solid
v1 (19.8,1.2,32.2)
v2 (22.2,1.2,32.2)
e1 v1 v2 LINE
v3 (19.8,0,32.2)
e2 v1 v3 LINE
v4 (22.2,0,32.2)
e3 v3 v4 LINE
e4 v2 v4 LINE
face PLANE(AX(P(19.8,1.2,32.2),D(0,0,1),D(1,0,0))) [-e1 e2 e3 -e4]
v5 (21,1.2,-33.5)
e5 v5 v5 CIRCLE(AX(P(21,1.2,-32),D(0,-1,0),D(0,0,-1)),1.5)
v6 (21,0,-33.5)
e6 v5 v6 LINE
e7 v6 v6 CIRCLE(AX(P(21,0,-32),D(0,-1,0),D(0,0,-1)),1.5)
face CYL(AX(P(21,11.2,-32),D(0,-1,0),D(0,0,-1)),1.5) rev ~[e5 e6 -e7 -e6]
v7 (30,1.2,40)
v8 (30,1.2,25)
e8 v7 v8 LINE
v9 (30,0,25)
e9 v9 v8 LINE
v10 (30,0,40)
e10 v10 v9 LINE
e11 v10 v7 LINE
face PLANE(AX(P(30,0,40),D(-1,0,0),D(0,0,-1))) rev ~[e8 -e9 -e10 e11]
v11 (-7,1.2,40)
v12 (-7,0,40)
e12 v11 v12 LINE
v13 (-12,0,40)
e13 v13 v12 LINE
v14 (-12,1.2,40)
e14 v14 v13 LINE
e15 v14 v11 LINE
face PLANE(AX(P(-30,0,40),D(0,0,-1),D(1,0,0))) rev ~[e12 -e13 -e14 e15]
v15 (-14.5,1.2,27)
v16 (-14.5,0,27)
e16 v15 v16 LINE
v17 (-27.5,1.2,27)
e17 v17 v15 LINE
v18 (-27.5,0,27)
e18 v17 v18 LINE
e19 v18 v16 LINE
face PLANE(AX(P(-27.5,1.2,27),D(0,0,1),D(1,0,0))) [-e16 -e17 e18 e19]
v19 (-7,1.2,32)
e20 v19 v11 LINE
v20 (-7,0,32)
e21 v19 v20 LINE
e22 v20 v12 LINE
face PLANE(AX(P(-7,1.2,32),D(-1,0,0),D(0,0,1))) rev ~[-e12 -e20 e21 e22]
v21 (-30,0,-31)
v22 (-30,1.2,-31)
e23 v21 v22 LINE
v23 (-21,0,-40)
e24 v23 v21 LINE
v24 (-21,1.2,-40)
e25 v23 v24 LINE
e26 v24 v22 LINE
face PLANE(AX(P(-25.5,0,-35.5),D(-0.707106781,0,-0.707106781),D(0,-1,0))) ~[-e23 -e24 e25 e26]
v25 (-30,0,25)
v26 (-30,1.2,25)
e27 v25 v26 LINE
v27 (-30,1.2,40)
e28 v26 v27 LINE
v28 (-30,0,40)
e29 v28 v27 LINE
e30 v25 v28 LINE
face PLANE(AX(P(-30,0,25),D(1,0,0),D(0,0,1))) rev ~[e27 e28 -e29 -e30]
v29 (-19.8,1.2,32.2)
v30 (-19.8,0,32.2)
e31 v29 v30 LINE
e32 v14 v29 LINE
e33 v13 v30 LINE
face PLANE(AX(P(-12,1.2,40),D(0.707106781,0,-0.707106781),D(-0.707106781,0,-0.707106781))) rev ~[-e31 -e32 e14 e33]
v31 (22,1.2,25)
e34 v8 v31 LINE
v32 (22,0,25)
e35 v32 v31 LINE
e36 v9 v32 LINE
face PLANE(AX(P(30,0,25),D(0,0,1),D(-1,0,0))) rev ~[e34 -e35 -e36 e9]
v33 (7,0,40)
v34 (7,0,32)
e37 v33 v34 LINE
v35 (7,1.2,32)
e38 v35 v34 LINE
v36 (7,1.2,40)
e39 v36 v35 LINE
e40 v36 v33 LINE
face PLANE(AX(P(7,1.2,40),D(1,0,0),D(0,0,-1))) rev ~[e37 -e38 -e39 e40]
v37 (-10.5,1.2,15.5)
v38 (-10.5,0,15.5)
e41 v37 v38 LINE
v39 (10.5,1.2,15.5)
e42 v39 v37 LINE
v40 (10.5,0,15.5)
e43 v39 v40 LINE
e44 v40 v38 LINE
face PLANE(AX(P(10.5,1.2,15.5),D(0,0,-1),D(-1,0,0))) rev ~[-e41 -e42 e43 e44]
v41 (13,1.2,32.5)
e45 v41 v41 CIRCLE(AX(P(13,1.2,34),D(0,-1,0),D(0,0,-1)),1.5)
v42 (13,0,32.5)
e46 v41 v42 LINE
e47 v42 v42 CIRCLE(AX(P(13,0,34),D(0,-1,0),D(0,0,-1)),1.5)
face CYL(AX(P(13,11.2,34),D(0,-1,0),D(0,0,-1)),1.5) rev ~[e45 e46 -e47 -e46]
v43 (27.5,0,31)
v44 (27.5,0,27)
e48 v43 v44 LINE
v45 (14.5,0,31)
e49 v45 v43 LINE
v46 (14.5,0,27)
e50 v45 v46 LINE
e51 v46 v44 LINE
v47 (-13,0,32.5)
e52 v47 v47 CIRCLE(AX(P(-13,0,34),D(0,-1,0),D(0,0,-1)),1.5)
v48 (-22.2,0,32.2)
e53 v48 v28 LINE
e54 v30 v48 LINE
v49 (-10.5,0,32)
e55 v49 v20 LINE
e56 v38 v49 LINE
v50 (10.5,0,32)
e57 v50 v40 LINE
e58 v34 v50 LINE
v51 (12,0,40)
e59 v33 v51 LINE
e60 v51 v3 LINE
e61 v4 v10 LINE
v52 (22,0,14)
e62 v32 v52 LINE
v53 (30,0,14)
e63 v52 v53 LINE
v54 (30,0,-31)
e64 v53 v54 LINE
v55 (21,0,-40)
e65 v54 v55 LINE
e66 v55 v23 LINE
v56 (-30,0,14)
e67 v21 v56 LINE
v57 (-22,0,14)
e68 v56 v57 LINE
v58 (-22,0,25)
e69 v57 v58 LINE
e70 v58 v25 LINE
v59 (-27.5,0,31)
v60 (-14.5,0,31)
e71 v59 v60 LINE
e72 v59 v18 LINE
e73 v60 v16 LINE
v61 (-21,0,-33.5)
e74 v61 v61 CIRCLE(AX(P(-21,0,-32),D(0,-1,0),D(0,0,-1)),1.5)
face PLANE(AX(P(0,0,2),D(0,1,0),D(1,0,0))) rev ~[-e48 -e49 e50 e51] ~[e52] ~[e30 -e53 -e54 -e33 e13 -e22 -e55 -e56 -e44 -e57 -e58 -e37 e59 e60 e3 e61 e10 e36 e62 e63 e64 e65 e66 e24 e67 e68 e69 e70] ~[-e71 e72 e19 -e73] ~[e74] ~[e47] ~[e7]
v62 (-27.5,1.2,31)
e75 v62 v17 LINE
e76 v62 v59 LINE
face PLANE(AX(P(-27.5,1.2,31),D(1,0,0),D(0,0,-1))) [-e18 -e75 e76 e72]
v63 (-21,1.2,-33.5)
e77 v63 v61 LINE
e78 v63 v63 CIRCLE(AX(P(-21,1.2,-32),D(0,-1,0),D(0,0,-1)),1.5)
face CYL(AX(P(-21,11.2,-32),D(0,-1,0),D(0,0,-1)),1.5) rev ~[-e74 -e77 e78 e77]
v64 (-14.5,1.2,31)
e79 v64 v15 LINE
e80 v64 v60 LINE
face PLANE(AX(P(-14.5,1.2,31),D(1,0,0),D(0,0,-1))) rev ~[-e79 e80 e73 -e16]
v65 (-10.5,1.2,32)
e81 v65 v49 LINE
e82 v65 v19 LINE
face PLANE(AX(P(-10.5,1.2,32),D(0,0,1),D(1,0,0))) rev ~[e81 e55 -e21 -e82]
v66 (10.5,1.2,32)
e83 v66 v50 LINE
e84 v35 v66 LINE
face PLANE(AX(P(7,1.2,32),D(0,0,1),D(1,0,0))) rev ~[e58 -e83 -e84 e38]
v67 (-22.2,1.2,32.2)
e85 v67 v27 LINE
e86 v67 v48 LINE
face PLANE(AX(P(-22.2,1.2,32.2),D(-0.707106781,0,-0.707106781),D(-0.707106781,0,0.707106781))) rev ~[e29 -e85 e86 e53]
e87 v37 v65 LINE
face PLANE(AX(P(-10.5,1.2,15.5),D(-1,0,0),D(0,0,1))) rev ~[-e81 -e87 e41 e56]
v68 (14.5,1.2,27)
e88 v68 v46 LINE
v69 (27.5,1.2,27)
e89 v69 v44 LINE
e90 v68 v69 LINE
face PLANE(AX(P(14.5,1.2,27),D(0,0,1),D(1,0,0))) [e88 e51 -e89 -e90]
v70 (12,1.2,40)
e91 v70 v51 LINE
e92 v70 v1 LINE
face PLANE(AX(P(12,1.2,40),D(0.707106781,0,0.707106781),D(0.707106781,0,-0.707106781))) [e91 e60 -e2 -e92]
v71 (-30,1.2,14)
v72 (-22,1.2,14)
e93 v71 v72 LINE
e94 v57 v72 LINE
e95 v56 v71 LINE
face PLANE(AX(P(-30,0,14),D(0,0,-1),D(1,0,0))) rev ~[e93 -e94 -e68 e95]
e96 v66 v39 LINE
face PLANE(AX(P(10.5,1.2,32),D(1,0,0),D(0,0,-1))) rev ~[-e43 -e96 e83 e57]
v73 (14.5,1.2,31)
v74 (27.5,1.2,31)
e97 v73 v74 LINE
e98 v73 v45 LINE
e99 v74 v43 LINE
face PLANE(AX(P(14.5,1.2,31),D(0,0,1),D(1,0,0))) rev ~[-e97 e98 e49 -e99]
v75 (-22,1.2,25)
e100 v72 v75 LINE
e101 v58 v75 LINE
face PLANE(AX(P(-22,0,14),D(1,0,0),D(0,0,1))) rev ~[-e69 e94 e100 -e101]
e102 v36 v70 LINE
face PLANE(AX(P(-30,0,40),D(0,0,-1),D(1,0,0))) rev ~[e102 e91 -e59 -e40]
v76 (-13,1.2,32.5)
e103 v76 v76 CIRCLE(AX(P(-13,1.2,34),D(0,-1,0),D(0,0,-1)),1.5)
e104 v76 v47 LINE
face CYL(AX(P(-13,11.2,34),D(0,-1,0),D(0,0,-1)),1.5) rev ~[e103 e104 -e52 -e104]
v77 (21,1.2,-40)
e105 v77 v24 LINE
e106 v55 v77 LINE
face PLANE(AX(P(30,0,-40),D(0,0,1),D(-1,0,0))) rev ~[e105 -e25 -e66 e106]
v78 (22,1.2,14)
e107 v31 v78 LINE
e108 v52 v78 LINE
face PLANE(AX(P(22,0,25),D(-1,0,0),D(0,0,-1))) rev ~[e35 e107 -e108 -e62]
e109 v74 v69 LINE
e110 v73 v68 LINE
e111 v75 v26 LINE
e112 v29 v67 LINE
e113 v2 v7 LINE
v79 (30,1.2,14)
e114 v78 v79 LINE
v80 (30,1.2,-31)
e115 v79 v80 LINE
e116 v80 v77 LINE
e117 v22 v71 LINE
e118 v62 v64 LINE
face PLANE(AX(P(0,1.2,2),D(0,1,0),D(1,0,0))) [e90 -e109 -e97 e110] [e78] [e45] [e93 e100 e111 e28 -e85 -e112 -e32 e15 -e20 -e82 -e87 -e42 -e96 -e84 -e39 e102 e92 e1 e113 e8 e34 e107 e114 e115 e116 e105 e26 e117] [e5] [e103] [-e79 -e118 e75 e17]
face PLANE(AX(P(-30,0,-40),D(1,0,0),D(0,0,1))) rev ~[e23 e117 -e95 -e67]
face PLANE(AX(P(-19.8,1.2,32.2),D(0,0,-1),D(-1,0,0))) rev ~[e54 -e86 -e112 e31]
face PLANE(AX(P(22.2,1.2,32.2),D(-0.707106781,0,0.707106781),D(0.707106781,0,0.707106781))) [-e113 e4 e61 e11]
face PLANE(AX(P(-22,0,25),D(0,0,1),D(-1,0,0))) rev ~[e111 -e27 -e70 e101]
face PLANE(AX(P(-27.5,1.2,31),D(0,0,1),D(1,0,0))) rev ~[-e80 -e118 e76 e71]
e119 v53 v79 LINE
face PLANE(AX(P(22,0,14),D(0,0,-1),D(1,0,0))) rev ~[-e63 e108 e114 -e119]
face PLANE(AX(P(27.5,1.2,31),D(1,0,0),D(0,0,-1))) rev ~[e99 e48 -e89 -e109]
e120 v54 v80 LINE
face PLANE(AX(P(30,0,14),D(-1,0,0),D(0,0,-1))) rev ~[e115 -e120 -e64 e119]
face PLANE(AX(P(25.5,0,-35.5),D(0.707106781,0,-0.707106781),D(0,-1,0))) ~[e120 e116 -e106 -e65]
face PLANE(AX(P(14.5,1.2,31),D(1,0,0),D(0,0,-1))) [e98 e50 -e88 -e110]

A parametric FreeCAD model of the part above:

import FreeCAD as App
import Part
import Sketcher
from FreeCAD import Vector


def edges_at(feature, points):
    """Names of the edges that pass closest to the given points."""
    edges = feature.Shape.Edges
    near = lambda p: min(range(len(edges)), key=lambda i: edges[i].distToShape(Part.Vertex(*p))[0])
    return sorted({f"Edge{near(p) + 1}" for p in points})


def add_polygon(sketch, points):
    """Adds a closed chain of lines whose ends are joined by coincident constraints."""
    first, n = sketch.GeometryCount, len(points)
    for a, b in zip(points, points[1:] + points[:1]):
        sketch.addGeometry(Part.LineSegment(App.Vector(*a, 0), App.Vector(*b, 0)), False)
    for i in range(n):
        sketch.addConstraint(Sketcher.Constraint("Coincident", first + i, 2, first + (i + 1) % n, 1))

doc = App.newDocument("Part")
body = doc.addObject("PartDesign::Body", "Body")

sketch1 = body.newObject("Sketcher::SketchObject", "Sketch")
sketch1.AttachmentSupport = (doc.getObject("XZ_Plane"), [""])
sketch1.MapMode = "FlatFace"
add_polygon(sketch1, [(-30, 25), (-30, 40), (30, 40), (30, 25), (22, 25), (22, 14), (30, 14), (30, -40), (-30, -40), (-30, 14), (-22, 14), (-22, 25)])
sketch1.addConstraint(Sketcher.Constraint("Vertical", 0))
sketch1.addConstraint(Sketcher.Constraint("Horizontal", 1))
sketch1.addConstraint(Sketcher.Constraint("Vertical", 2))
sketch1.addConstraint(Sketcher.Constraint("Horizontal", 3))
sketch1.addConstraint(Sketcher.Constraint("Vertical", 4))
sketch1.addConstraint(Sketcher.Constraint("Horizontal", 5))
sketch1.addConstraint(Sketcher.Constraint("Vertical", 6))
sketch1.addConstraint(Sketcher.Constraint("Horizontal", 7))
sketch1.addConstraint(Sketcher.Constraint("Vertical", 8))
sketch1.addConstraint(Sketcher.Constraint("Horizontal", 9))
sketch1.addConstraint(Sketcher.Constraint("Vertical", 10))
sketch1.addConstraint(Sketcher.Constraint("Horizontal", 11))
sketch1.addConstraint(Sketcher.Constraint("Symmetric", 0, 2, 6, 2, -1, 1))
sketch1.addConstraint(Sketcher.Constraint("Symmetric", 5, 2, 8, 2, -2))
sketch1.addConstraint(Sketcher.Constraint("Symmetric", 3, 2, 10, 2, -2))
sketch1.addConstraint(Sketcher.Constraint("Vertical", 2, 2, 5, 2))
sketch1.addConstraint(Sketcher.Constraint("DistanceX", 1, 1, 1, 2, 60.0))
sketch1.addConstraint(Sketcher.Constraint("DistanceX", 3, 2, 3, 1, 8.0))
sketch1.addConstraint(Sketcher.Constraint("DistanceY", 0, 1, 0, 2, 15.0))
sketch1.addConstraint(Sketcher.Constraint("DistanceY", 4, 2, 4, 1, 11.0))
sketch1.addConstraint(Sketcher.Constraint("DistanceY", 6, 2, 6, 1, 54.0))
pad1 = body.newObject("PartDesign::Pad", "Pad")
pad1.Profile = sketch1
pad1.Length = 1.2
pad1.Reversed = True
doc.recompute()

chamfer = body.newObject("PartDesign::Chamfer", "Chamfer")
chamfer.Base = (pad1, edges_at(pad1, [(-30, 0.6, -40), (30, 0.6, -40)]))
chamfer.Size = 9

sketch2 = body.newObject("Sketcher::SketchObject", "Sketch001")
sketch2.AttachmentSupport = (doc.getObject("XZ_Plane"), [""])
sketch2.MapMode = "FlatFace"
sketch2.AttachmentOffset = App.Placement(Vector(0, 0, -1.2), App.Rotation())
sketch2.addGeometry(Part.Circle(Vector(-13, 34, 0), Vector(0, 0, 1), 1.5), False)
sketch2.addGeometry(Part.Circle(Vector(13, 34, 0), Vector(0, 0, 1), 1.5), False)
sketch2.addGeometry(Part.Circle(Vector(21, -32, 0), Vector(0, 0, 1), 1.5), False)
sketch2.addGeometry(Part.Circle(Vector(-21, -32, 0), Vector(0, 0, 1), 1.5), False)
sketch2.addConstraint(Sketcher.Constraint("Equal", 0, 1))
sketch2.addConstraint(Sketcher.Constraint("Equal", 1, 2))
sketch2.addConstraint(Sketcher.Constraint("Equal", 2, 3))
sketch2.addConstraint(Sketcher.Constraint("Symmetric", 0, 3, 1, 3, -2))
sketch2.addConstraint(Sketcher.Constraint("Symmetric", 2, 3, 3, 3, -2))
sketch2.addConstraint(Sketcher.Constraint("Diameter", 0, 3.0))
sketch2.addConstraint(Sketcher.Constraint("DistanceX", 0, 3, -1, 1, 13.0))
sketch2.addConstraint(Sketcher.Constraint("DistanceY", -1, 1, 0, 3, 34.0))
sketch2.addConstraint(Sketcher.Constraint("DistanceX", -1, 1, 2, 3, 21.0))
sketch2.addConstraint(Sketcher.Constraint("DistanceY", 2, 3, -1, 1, 32.0))
doc.recompute()
hole = body.newObject("PartDesign::Hole", "Hole")
hole.Profile = sketch2
hole.ThreadType = "None"
hole.Diameter = 3
hole.DepthType = "Dimension"
hole.Depth = 10
hole.DrillPoint = "Angled"
hole.DrillPointAngle = 118
hole.Reversed = True

sketch3 = body.newObject("Sketcher::SketchObject", "Sketch002")
sketch3.AttachmentSupport = (doc.getObject("XZ_Plane"), [""])
sketch3.MapMode = "FlatFace"
sketch3.AttachmentOffset = App.Placement(Vector(0, 0, -1.2), App.Rotation())
add_polygon(sketch3, [(-10.5, 32), (-7, 32), (-7, 40), (7, 40), (7, 32), (10.5, 32), (10.5, 15.5), (-10.5, 15.5)])
sketch3.addConstraint(Sketcher.Constraint("Horizontal", 0))
sketch3.addConstraint(Sketcher.Constraint("Vertical", 1))
sketch3.addConstraint(Sketcher.Constraint("Horizontal", 2))
sketch3.addConstraint(Sketcher.Constraint("Vertical", 3))
sketch3.addConstraint(Sketcher.Constraint("Horizontal", 4))
sketch3.addConstraint(Sketcher.Constraint("Vertical", 5))
sketch3.addConstraint(Sketcher.Constraint("Horizontal", 6))
sketch3.addConstraint(Sketcher.Constraint("Vertical", 7))
sketch3.addConstraint(Sketcher.Constraint("Symmetric", 0, 2, 3, 2, -2))
sketch3.addConstraint(Sketcher.Constraint("Equal", 0, 4))
sketch3.addConstraint(Sketcher.Constraint("DistanceX", 2, 1, 2, 2, 14.0))
sketch3.addConstraint(Sketcher.Constraint("DistanceX", 6, 2, 6, 1, 21.0))
sketch3.addConstraint(Sketcher.Constraint("DistanceY", 1, 1, 1, 2, 8.0))
sketch3.addConstraint(Sketcher.Constraint("DistanceY", 5, 2, 5, 1, 16.5))
sketch3.addConstraint(Sketcher.Constraint("DistanceY", -1, 1, 0, 2, 32.0))
pocket1 = body.newObject("PartDesign::Pocket", "Pocket")
pocket1.Profile = sketch3
pocket1.Length = 10
pocket1.Reversed = True

sketch4 = body.newObject("Sketcher::SketchObject", "Sketch003")
sketch4.AttachmentSupport = (doc.getObject("XZ_Plane"), [""])
sketch4.MapMode = "FlatFace"
sketch4.AttachmentOffset = App.Placement(Vector(0, 0, -1.2), App.Rotation())
add_polygon(sketch4, [(14.5, 27), (14.5, 31), (27.5, 31), (27.5, 27)])
add_polygon(sketch4, [(-27.5, 27), (-27.5, 31), (-14.5, 31), (-14.5, 27)])
sketch4.addConstraint(Sketcher.Constraint("Vertical", 0))
sketch4.addConstraint(Sketcher.Constraint("Horizontal", 1))
sketch4.addConstraint(Sketcher.Constraint("Vertical", 2))
sketch4.addConstraint(Sketcher.Constraint("Horizontal", 3))
sketch4.addConstraint(Sketcher.Constraint("Vertical", 4))
sketch4.addConstraint(Sketcher.Constraint("Horizontal", 5))
sketch4.addConstraint(Sketcher.Constraint("Vertical", 6))
sketch4.addConstraint(Sketcher.Constraint("Horizontal", 7))
sketch4.addConstraint(Sketcher.Constraint("Symmetric", 1, 2, 4, 2, -2))
sketch4.addConstraint(Sketcher.Constraint("Symmetric", 3, 2, 6, 2, -2))
sketch4.addConstraint(Sketcher.Constraint("DistanceX", 1, 1, 1, 2, 13.0))
sketch4.addConstraint(Sketcher.Constraint("DistanceY", 0, 1, 0, 2, 4.0))
sketch4.addConstraint(Sketcher.Constraint("DistanceY", -1, 1, 0, 2, 31.0))
sketch4.addConstraint(Sketcher.Constraint("DistanceX", 4, 2, 0, 2, 42.0))
pocket2 = body.newObject("PartDesign::Pocket", "Pocket001")
pocket2.Profile = sketch4
pocket2.Length = 10
pocket2.Reversed = True

sketch5 = body.newObject("Sketcher::SketchObject", "Sketch004")
sketch5.AttachmentSupport = (doc.getObject("XZ_Plane"), [""])
sketch5.MapMode = "FlatFace"
sketch5.AttachmentOffset = App.Placement(Vector(0, 0, -1.2), App.Rotation())
add_polygon(sketch5, [(19.8, 32.2), (12, 40), (30, 40), (22.2, 32.2)])
add_polygon(sketch5, [(-30, 40), (-12, 40), (-19.8, 32.2), (-22.2, 32.2)])
sketch5.addConstraint(Sketcher.Constraint("Horizontal", 1))
sketch5.addConstraint(Sketcher.Constraint("Horizontal", 3))
sketch5.addConstraint(Sketcher.Constraint("Horizontal", 4))
sketch5.addConstraint(Sketcher.Constraint("Horizontal", 6))
sketch5.addConstraint(Sketcher.Constraint("Symmetric", 0, 2, 4, 2, -2))
sketch5.addConstraint(Sketcher.Constraint("Symmetric", 3, 2, 5, 2, -2))
sketch5.addConstraint(Sketcher.Constraint("Perpendicular", 0, 2))
sketch5.addConstraint(Sketcher.Constraint("Parallel", 2, 5))
sketch5.addConstraint(Sketcher.Constraint("Perpendicular", 5, 7))
sketch5.addConstraint(Sketcher.Constraint("Equal", 1, 4))
sketch5.addConstraint(Sketcher.Constraint("DistanceX", 1, 1, 1, 2, 18.0))
sketch5.addConstraint(Sketcher.Constraint("DistanceX", 3, 2, 3, 1, 2.4))
sketch5.addConstraint(Sketcher.Constraint("DistanceX", -1, 1, 0, 2, 12.0))
sketch5.addConstraint(Sketcher.Constraint("DistanceY", -1, 1, 0, 2, 40.0))
pocket3 = body.newObject("PartDesign::Pocket", "Pocket002")
pocket3.Profile = sketch5
pocket3.Length = 10
pocket3.Reversed = True

doc.recompute()
